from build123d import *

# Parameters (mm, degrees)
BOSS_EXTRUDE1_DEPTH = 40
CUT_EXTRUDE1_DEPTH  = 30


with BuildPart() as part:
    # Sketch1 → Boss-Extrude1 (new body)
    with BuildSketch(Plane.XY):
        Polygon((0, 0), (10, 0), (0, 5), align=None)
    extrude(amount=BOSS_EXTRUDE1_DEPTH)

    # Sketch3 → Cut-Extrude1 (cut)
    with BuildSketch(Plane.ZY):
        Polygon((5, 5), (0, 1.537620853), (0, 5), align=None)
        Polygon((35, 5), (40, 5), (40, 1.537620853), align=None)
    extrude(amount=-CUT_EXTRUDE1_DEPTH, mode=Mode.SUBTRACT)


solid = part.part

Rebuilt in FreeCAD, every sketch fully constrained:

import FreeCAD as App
import Part
import Sketcher

V = App.Vector
Q = App.Units.Quantity

doc = App.newDocument("Part")
body = doc.addObject("PartDesign::Body", "Body")

sketch1 = doc.addObject("Sketcher::SketchObject", "Sketch")
body.addObject(sketch1)
sketch1.AttachmentSupport = (doc.XY_Plane, [""])
sketch1.MapMode = "FlatFace"
sketch1.addGeometry(Part.LineSegment(V(0, 0, 0), V(10, 0, 0)), False)
sketch1.addGeometry(Part.LineSegment(V(10, 0, 0), V(0, 5, 0)), False)
sketch1.addGeometry(Part.LineSegment(V(0, 5, 0), V(0, 0, 0)), False)
sketch1.addConstraint(Sketcher.Constraint("Coincident", 0, 2, 1, 1))
sketch1.addConstraint(Sketcher.Constraint("Coincident", 1, 2, 2, 1))
sketch1.addConstraint(Sketcher.Constraint("Coincident", 2, 2, 0, 1))
sketch1.addConstraint(Sketcher.Constraint("Horizontal", 0))
sketch1.addConstraint(Sketcher.Constraint("Vertical", 2))
sketch1.addConstraint(Sketcher.Constraint("Coincident", 2, 2, -1, 1))
sketch1.addConstraint(Sketcher.Constraint("DistanceX", 0, 1, 0, 2, Q("10 mm")))
sketch1.addConstraint(Sketcher.Constraint("DistanceY", 2, 2, 2, 1, Q("5 mm")))
pad1 = doc.addObject("PartDesign::Pad", "Pad")
body.addObject(pad1)
pad1.Profile = sketch1
pad1.Length = 40

sketch2 = doc.addObject("Sketcher::SketchObject", "Sketch001")
body.addObject(sketch2)
sketch2.AttachmentSupport = (doc.YZ_Plane, [""])
sketch2.MapMode = "FlatFace"
sketch2.addGeometry(Part.LineSegment(V(1.5, 0, 0), V(5, 5, 0)), False)
sketch2.addGeometry(Part.LineSegment(V(5, 5, 0), V(5, 0, 0)), False)
sketch2.addGeometry(Part.LineSegment(V(5, 0, 0), V(1.5, 0, 0)), False)
sketch2.addGeometry(Part.LineSegment(V(5, 40, 0), V(5, 35, 0)), False)
sketch2.addGeometry(Part.LineSegment(V(5, 35, 0), V(1.5, 40, 0)), False)
sketch2.addGeometry(Part.LineSegment(V(1.5, 40, 0), V(5, 40, 0)), False)
sketch2.addConstraint(Sketcher.Constraint("Coincident", 0, 2, 1, 1))
sketch2.addConstraint(Sketcher.Constraint("Coincident", 1, 2, 2, 1))
sketch2.addConstraint(Sketcher.Constraint("Coincident", 2, 2, 0, 1))
sketch2.addConstraint(Sketcher.Constraint("Coincident", 3, 2, 4, 1))
sketch2.addConstraint(Sketcher.Constraint("Coincident", 4, 2, 5, 1))
sketch2.addConstraint(Sketcher.Constraint("Coincident", 5, 2, 3, 1))
sketch2.addConstraint(Sketcher.Constraint("Vertical", 1))
sketch2.addConstraint(Sketcher.Constraint("Horizontal", 2))
sketch2.addConstraint(Sketcher.Constraint("Vertical", 3))
sketch2.addConstraint(Sketcher.Constraint("Horizontal", 5))
sketch2.addConstraint(Sketcher.Constraint("PointOnObject", 1, 2, -1))
sketch2.addConstraint(Sketcher.Constraint("Vertical", 1, 2, 3, 2))
sketch2.addConstraint(Sketcher.Constraint("Vertical", 2, 2, 4, 2))
sketch2.addConstraint(Sketcher.Constraint("Equal", 1, 3))
sketch2.addConstraint(Sketcher.Constraint("DistanceY", 1, 2, 1, 1, Q("5 mm")))
sketch2.addConstraint(Sketcher.Constraint("DistanceX", -1, 1, 0, 2, Q("5 mm")))
sketch2.addConstraint(Sketcher.Constraint("DistanceY", -1, 1, 3, 2, Q("35 mm")))
sketch2.addConstraint(Sketcher.Constraint("DistanceX", 2, 2, 2, 1, Q("3.462379 mm")))
pocket1 = doc.addObject("PartDesign::Pocket", "Pocket")
body.addObject(pocket1)
pocket1.Profile = sketch2
pocket1.Length = 30
pocket1.Reversed = True

doc.recompute()
